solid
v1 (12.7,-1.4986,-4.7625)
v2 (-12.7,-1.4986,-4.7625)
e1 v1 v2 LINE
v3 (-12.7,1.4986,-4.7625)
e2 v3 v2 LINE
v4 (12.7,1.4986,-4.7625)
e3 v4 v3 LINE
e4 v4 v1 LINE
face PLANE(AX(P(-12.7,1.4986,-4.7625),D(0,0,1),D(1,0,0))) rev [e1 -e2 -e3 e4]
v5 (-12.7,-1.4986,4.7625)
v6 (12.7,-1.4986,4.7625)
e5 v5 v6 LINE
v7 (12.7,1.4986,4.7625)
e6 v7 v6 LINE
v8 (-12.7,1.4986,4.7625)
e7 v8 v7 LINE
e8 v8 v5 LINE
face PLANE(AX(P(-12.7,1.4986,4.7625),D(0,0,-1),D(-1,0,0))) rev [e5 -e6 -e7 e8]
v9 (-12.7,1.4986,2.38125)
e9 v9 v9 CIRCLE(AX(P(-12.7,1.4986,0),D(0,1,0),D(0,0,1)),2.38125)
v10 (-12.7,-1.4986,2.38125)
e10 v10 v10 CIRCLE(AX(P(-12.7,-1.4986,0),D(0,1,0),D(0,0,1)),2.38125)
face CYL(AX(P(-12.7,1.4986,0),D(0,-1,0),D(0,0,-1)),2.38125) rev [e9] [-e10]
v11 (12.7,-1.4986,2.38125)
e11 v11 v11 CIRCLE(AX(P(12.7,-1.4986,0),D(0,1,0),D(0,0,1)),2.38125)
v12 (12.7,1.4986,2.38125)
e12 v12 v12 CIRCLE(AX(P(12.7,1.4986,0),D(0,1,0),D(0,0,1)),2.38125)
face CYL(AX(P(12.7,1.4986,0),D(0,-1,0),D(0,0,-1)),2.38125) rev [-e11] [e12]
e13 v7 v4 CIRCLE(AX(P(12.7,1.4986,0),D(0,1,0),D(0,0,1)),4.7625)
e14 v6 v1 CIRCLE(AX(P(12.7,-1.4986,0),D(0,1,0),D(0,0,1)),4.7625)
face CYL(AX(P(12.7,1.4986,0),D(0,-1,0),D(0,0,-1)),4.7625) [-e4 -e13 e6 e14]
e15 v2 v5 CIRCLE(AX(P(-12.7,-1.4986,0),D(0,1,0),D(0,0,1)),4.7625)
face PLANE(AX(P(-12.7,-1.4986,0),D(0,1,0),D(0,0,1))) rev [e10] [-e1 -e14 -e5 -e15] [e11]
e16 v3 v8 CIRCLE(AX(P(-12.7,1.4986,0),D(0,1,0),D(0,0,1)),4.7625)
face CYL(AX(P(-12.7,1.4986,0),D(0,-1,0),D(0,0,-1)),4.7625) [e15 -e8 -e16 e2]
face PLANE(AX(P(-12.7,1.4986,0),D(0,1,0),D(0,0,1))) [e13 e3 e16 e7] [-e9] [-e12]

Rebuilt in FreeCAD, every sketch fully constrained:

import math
import FreeCAD as App
import Part
import Sketcher

V = App.Vector
Q = App.Units.Quantity

doc = App.newDocument("Part")
params = doc.addObject("Spreadsheet::Sheet", "Params")
for row, (alias, value) in enumerate([
    ("sketch1_width", "1 in"),
    ("sketch1_diameter", "0.1875 in"),
    ("sketch1_radius", "0.1875 in"),
    ("pad1_length", "0.118 in"),
], start=1):
    params.set(f"A{row}", alias)
    params.set(f"B{row}", "=" + value)
    params.setAlias(f"B{row}", alias)

body = doc.addObject("PartDesign::Body", "Body")

# Sketch on XZ plane
sketch1 = body.newObject("Sketcher::SketchObject", "Sketch")
sketch1.AttachmentSupport = (doc.getObject("XZ_Plane"), [""])
sketch1.MapMode = "FlatFace"
sketch1.addGeometry([
    Part.LineSegment(V(12.7, -4.8, 0), V(-12.7, -4.8, 0)),  # 0
    Part.ArcOfCircle(Part.Circle(V(-12.7, 0, 0), V(0, 0, 1), 4.8), math.radians(90), math.radians(270)),  # 1
    Part.LineSegment(V(-12.7, 4.8, 0), V(12.7, 4.8, 0)),  # 2
    Part.ArcOfCircle(Part.Circle(V(12.7, 0, 0), V(0, 0, 1), 4.8), math.radians(-90), math.radians(90)),  # 3
    Part.Circle(V(12.7, 0, 0), V(0, 0, 1), 2.4),  # 4
    Part.Circle(V(-12.7, 0, 0), V(0, 0, 1), 2.4),  # 5
], False)
sketch1.addConstraint([
    Sketcher.Constraint("Tangent", 0, 2, 1, 2),
    Sketcher.Constraint("Tangent", 1, 1, 2, 1),
    Sketcher.Constraint("Tangent", 2, 2, 3, 2),
    Sketcher.Constraint("Tangent", 3, 1, 0, 1),
    Sketcher.Constraint("Horizontal", 0),
    Sketcher.Constraint("Horizontal", 2),
    Sketcher.Constraint("Coincident", 4, 3, 3, 3),
    Sketcher.Constraint("Coincident", 5, 3, 1, 3),
    Sketcher.Constraint("Equal", 4, 5),
    Sketcher.Constraint("Symmetric", 1, 3, 3, 3, -1, 1),
    Sketcher.Constraint("DistanceX", 0, 2, 0, 1, Q("1 in")),
    Sketcher.Constraint("Diameter", 4, Q("0.1875 in")),
    Sketcher.Constraint("Radius", 1, Q("0.1875 in")),
])
sketch1.setExpression("Constraints[10]", "Params.sketch1_width")
sketch1.setExpression("Constraints[11]", "Params.sketch1_diameter")
sketch1.setExpression("Constraints[12]", "Params.sketch1_radius")
pad1 = body.newObject("PartDesign::Pad", "Pad")
pad1.Profile = sketch1
pad1.setExpression("Length", "Params.pad1_length")
pad1.Midplane = True

doc.recompute()
